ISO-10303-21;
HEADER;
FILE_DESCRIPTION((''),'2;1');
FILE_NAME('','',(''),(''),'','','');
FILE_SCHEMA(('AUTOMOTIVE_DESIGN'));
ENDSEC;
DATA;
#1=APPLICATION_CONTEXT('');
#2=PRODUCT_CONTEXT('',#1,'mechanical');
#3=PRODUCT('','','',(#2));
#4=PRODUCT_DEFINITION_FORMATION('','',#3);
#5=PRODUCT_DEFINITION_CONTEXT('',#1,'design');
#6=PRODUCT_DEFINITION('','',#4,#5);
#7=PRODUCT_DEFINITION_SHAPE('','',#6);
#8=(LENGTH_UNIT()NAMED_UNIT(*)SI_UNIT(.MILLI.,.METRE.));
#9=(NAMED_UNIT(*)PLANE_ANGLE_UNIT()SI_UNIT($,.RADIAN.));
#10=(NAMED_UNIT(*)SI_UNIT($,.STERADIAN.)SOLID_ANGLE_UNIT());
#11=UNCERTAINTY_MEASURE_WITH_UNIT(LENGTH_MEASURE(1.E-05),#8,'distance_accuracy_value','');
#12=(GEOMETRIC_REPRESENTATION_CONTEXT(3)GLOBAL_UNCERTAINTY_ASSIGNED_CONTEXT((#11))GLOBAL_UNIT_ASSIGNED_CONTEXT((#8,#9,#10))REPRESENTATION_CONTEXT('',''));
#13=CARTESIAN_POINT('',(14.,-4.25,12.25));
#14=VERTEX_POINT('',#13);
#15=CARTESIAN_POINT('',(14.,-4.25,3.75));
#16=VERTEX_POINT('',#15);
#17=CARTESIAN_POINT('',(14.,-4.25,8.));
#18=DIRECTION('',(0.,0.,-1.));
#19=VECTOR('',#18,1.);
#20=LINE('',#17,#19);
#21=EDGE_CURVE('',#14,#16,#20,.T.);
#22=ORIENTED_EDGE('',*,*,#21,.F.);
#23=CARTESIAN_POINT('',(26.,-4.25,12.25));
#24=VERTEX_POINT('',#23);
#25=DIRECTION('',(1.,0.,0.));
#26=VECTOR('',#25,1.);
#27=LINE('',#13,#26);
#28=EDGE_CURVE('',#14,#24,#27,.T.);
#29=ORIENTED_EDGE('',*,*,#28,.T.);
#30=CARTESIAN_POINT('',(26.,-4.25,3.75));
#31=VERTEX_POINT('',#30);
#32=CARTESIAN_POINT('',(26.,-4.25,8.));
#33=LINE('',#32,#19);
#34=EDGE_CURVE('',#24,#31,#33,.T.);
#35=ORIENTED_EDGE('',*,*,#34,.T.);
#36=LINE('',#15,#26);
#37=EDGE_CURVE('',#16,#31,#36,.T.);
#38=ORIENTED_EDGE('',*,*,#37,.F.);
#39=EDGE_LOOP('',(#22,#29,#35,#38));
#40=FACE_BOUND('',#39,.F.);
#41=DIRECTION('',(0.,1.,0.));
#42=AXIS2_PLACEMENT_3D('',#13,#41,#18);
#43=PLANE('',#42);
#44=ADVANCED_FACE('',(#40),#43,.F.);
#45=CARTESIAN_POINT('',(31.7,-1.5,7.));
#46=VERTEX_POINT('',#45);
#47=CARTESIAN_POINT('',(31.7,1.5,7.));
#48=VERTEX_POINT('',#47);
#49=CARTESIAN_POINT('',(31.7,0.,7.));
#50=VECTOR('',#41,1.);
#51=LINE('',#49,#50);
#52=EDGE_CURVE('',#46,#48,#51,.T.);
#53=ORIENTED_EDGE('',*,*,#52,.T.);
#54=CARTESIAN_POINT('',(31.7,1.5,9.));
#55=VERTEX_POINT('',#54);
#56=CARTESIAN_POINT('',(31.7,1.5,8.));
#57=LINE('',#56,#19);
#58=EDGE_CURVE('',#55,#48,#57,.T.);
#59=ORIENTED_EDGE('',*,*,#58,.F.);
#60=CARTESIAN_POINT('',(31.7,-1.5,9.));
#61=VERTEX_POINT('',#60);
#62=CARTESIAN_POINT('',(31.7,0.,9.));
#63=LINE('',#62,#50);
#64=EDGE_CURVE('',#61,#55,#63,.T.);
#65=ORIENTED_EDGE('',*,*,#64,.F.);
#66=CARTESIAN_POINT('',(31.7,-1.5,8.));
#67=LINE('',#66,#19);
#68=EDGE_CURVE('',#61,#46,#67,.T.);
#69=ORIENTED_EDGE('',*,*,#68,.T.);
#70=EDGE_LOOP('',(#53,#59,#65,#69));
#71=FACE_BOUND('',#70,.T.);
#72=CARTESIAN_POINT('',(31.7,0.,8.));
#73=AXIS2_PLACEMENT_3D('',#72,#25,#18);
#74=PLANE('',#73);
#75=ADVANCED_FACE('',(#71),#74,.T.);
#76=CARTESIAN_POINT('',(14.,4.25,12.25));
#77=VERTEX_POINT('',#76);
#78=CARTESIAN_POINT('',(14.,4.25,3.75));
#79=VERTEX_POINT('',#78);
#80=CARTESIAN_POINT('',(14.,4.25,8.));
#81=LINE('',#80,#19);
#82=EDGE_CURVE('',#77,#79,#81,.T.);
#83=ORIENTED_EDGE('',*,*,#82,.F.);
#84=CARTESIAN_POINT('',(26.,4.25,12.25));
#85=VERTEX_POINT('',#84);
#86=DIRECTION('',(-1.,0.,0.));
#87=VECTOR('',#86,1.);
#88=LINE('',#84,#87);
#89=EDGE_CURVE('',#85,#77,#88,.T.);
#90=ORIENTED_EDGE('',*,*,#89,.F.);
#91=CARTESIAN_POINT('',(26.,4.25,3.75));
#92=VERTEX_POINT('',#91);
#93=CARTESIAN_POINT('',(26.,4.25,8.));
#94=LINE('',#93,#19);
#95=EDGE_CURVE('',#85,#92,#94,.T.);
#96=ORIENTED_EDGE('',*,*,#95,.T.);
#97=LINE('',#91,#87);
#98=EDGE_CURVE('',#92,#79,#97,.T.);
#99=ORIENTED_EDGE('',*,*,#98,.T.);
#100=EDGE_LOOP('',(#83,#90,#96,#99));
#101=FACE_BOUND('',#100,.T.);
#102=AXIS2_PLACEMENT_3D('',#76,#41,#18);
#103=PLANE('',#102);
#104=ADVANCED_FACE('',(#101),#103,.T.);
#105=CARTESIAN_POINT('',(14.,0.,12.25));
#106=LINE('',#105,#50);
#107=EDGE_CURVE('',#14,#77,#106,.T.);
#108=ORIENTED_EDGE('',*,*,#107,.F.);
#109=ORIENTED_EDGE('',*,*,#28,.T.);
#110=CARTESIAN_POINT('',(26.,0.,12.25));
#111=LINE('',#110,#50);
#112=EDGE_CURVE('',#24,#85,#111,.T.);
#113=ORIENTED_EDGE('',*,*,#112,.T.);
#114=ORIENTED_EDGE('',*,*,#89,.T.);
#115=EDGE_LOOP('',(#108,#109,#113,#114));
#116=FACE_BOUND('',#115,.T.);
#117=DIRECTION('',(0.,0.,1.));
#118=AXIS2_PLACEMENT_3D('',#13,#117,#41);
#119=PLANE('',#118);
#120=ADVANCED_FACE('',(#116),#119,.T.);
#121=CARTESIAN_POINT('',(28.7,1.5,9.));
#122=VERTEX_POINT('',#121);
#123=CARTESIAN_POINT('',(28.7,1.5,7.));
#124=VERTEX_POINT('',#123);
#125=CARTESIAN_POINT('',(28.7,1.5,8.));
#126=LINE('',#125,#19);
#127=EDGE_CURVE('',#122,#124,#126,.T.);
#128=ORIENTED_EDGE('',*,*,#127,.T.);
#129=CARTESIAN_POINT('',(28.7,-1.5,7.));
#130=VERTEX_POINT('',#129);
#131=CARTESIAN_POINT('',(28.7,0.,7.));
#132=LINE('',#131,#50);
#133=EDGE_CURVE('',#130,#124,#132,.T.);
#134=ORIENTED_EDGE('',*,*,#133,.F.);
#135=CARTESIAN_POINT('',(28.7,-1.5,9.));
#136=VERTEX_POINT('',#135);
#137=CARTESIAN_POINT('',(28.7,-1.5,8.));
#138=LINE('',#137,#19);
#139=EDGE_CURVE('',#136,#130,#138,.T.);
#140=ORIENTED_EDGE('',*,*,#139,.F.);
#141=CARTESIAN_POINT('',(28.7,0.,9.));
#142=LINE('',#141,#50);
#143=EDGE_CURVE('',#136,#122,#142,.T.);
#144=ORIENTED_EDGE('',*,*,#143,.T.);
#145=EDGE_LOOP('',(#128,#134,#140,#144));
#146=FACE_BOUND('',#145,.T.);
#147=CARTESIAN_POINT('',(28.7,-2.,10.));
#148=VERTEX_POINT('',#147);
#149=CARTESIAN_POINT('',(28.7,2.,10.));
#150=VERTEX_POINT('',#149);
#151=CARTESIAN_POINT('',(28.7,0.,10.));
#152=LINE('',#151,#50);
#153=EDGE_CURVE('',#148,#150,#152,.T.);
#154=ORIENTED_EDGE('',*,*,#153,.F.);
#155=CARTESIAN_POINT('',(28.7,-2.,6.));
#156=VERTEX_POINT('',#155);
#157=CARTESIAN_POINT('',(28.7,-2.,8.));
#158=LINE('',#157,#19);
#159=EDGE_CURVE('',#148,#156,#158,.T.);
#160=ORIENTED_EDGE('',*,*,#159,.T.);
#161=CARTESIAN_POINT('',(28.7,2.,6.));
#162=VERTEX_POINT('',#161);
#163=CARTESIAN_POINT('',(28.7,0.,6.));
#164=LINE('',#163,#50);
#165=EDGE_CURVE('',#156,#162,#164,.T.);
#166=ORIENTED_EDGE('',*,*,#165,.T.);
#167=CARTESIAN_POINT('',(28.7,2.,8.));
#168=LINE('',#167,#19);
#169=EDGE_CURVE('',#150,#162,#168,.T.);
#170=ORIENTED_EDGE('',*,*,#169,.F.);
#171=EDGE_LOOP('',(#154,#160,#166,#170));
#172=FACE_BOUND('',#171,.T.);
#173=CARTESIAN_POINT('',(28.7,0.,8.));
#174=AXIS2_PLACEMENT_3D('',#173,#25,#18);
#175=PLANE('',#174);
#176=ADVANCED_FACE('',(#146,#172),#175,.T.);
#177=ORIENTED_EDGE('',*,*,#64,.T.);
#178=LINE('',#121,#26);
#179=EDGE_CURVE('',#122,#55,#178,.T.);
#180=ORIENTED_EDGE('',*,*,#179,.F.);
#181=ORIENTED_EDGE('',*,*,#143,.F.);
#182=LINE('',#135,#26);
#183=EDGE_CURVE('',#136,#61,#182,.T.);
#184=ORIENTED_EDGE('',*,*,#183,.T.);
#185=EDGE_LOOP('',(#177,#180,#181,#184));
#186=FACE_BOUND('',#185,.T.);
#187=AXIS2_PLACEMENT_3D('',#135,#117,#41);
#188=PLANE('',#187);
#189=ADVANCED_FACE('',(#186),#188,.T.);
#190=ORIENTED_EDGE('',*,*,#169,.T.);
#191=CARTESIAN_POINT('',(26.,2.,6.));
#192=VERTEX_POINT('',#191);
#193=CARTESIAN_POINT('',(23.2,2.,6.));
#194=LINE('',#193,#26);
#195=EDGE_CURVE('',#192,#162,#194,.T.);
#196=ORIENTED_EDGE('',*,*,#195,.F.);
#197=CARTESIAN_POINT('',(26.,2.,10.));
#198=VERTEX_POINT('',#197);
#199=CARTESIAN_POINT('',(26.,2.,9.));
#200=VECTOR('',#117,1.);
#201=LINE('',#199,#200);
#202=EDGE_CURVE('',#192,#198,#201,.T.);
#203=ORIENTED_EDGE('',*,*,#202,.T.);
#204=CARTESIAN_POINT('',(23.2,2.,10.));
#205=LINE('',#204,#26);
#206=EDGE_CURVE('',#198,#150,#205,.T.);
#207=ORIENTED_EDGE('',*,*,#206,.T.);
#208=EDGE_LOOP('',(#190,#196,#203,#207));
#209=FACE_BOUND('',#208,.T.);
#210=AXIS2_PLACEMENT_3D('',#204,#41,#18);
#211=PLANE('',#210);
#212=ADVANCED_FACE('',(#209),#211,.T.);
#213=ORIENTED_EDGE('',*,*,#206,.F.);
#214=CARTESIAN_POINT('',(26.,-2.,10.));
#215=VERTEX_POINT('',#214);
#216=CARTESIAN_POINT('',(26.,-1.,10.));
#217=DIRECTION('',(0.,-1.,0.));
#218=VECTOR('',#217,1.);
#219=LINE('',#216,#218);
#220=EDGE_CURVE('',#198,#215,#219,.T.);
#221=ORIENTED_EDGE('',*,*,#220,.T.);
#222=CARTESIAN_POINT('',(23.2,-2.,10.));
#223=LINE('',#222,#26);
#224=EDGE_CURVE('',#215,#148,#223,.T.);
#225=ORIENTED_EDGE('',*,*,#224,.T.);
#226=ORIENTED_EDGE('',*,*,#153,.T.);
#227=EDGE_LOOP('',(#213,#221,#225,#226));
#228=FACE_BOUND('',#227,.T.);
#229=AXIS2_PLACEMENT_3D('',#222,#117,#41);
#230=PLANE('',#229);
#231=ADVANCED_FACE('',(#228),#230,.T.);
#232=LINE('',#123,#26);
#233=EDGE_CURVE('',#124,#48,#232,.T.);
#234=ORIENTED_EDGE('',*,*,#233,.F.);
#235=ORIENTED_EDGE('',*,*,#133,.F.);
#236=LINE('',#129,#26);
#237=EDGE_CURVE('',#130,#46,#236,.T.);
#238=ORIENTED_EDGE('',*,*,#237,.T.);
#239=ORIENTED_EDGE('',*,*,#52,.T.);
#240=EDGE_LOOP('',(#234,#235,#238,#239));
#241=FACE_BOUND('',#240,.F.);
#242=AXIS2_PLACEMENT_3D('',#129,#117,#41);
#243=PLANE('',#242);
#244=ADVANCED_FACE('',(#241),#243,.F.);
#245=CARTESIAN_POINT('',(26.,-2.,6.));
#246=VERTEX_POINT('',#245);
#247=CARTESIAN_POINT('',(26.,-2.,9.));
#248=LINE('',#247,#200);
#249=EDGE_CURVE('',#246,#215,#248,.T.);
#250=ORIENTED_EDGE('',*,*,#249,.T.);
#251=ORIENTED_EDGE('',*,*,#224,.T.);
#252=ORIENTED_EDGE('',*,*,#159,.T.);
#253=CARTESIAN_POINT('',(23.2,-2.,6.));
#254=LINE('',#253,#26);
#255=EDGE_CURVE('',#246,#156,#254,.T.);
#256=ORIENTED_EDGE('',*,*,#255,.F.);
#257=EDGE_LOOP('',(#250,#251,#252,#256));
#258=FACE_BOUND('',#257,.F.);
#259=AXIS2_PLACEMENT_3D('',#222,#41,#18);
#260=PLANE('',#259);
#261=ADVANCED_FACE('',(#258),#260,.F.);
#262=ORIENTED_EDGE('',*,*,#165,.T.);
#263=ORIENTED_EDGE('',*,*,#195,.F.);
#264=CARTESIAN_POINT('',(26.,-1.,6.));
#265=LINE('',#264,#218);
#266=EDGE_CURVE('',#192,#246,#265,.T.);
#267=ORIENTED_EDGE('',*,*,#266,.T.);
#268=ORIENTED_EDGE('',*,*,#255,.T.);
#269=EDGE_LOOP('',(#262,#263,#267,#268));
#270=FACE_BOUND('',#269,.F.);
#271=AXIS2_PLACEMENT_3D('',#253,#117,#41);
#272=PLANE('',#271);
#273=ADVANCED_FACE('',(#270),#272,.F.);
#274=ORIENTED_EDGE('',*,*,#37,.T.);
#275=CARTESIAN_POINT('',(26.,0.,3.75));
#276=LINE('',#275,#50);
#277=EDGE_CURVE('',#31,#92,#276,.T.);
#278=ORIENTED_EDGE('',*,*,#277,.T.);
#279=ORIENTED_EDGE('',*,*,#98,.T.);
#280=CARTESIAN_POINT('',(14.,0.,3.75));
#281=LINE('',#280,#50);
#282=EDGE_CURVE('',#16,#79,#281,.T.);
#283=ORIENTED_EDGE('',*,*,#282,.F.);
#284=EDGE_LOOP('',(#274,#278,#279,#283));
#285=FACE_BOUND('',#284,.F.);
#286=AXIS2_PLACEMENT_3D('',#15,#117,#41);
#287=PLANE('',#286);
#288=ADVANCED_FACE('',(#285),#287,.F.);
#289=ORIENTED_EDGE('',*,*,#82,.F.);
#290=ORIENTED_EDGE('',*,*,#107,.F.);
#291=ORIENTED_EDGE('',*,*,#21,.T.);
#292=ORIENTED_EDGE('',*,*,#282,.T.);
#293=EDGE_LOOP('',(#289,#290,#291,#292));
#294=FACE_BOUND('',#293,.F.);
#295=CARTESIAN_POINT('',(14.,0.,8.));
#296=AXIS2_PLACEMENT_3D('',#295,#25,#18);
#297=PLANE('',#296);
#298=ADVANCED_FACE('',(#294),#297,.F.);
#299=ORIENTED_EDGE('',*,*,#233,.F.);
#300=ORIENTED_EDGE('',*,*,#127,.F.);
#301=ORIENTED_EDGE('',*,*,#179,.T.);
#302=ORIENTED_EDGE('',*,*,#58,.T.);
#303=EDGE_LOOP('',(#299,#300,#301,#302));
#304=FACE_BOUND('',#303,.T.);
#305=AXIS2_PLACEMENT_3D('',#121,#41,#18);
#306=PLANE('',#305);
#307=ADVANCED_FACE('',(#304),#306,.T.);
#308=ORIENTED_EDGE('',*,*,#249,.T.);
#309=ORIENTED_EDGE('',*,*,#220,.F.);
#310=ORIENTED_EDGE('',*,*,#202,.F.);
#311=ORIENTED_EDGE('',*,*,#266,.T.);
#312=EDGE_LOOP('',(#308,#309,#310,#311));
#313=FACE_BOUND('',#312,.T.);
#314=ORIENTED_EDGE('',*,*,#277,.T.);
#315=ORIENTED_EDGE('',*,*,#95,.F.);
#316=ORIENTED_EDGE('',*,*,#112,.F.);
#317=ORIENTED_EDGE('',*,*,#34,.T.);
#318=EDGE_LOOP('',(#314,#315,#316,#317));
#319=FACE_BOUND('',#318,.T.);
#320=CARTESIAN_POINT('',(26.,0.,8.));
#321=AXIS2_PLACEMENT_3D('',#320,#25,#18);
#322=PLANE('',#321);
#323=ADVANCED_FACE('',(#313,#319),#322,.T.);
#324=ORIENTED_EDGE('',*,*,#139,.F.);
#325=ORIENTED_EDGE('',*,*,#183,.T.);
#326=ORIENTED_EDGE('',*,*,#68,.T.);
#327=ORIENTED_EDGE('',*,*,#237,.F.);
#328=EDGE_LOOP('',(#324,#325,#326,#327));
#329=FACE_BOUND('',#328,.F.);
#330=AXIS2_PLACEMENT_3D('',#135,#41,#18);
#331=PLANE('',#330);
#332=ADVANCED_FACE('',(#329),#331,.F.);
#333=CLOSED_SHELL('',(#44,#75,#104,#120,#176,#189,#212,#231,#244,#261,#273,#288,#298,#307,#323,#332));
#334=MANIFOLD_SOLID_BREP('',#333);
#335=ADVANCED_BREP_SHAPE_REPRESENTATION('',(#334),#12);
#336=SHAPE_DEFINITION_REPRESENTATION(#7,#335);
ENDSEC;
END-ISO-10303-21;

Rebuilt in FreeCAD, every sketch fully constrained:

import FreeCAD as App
import Part
import Sketcher
from FreeCAD import Vector
Q = App.Units.Quantity

doc = App.newDocument("Part")
body = doc.addObject("PartDesign::Body", "Body")

# Sketch on XY plane
sketch1 = body.newObject("Sketcher::SketchObject", "Sketch")
sketch1.AttachmentSupport = (doc.getObject("XY_Plane"), [""])
sketch1.MapMode = "FlatFace"
sketch1.AttachmentOffset = App.Placement(Vector(0, 0, 5.7), App.Rotation())
sketch1.addGeometry([
    Part.LineSegment(Vector(-2, 2, 0), Vector(-2, -2, 0)),
    Part.LineSegment(Vector(-2, -2, 0), Vector(2, -2, 0)),
    Part.LineSegment(Vector(2, -2, 0), Vector(2, 2, 0)),
    Part.LineSegment(Vector(2, 2, 0), Vector(-2, 2, 0)),
], False)
sketch1.addConstraint([
    Sketcher.Constraint("Coincident", 0, 2, 1, 1),
    Sketcher.Constraint("Coincident", 1, 2, 2, 1),
    Sketcher.Constraint("Coincident", 2, 2, 3, 1),
    Sketcher.Constraint("Coincident", 3, 2, 0, 1),
    Sketcher.Constraint("Vertical", 0),
    Sketcher.Constraint("Horizontal", 1),
    Sketcher.Constraint("Vertical", 2),
    Sketcher.Constraint("Horizontal", 3),
    Sketcher.Constraint("Symmetric", 0, 2, 2, 2, -1, 1),
    Sketcher.Constraint("Equal", 3, 0),
    Sketcher.Constraint("DistanceX", 1, 1, 1, 2, Q("4 mm")),
])
pad1 = body.newObject("PartDesign::Pad", "Pad")
pad1.Profile = sketch1
pad1.Length = 5.5
body2 = doc.addObject("PartDesign::Body", "Body001")

# Sketch on XY plane
sketch2 = body2.newObject("Sketcher::SketchObject", "Sketch001")
sketch2.AttachmentSupport = (doc.getObject("XY_Plane001"), [""])
sketch2.MapMode = "FlatFace"
sketch2.AttachmentOffset = App.Placement(Vector(0, 0, -3.5), App.Rotation())
sketch2.addGeometry([
    Part.LineSegment(Vector(-4.25, 4.25, 0), Vector(-4.25, -4.25, 0)),
    Part.LineSegment(Vector(-4.25, -4.25, 0), Vector(4.25, -4.25, 0)),
    Part.LineSegment(Vector(4.25, -4.25, 0), Vector(4.25, 4.25, 0)),
    Part.LineSegment(Vector(4.25, 4.25, 0), Vector(-4.25, 4.25, 0)),
], False)
sketch2.addConstraint([
    Sketcher.Constraint("Coincident", 0, 2, 1, 1),
    Sketcher.Constraint("Coincident", 1, 2, 2, 1),
    Sketcher.Constraint("Coincident", 2, 2, 3, 1),
    Sketcher.Constraint("Coincident", 3, 2, 0, 1),
    Sketcher.Constraint("Vertical", 0),
    Sketcher.Constraint("Horizontal", 1),
    Sketcher.Constraint("Vertical", 2),
    Sketcher.Constraint("Horizontal", 3),
    Sketcher.Constraint("Symmetric", 0, 2, 2, 2, -1, 1),
    Sketcher.Constraint("Equal", 3, 0),
    Sketcher.Constraint("DistanceX", 1, 1, 1, 2, Q("8.5 mm")),
])
pad2 = body2.newObject("PartDesign::Pad", "Pad001")
pad2.Profile = sketch2
pad2.Length = 3.5
body3 = doc.addObject("PartDesign::Body", "Body002")

# Sketch on XY plane
sketch3 = body3.newObject("Sketcher::SketchObject", "Sketch002")
sketch3.AttachmentSupport = (doc.getObject("XY_Plane002"), [""])
sketch3.MapMode = "FlatFace"
sketch3.AttachmentOffset = App.Placement(Vector(0, 0, 11.2), App.Rotation())
sketch3.addGeometry([
    Part.LineSegment(Vector(-1, 1.5, 0), Vector(-1, -1.5, 0)),
    Part.LineSegment(Vector(-1, -1.5, 0), Vector(1, -1.5, 0)),
    Part.LineSegment(Vector(1, -1.5, 0), Vector(1, 1.5, 0)),
    Part.LineSegment(Vector(1, 1.5, 0), Vector(-1, 1.5, 0)),
], False)
sketch3.addConstraint([
    Sketcher.Constraint("Coincident", 0, 2, 1, 1),
    Sketcher.Constraint("Coincident", 1, 2, 2, 1),
    Sketcher.Constraint("Coincident", 2, 2, 3, 1),
    Sketcher.Constraint("Coincident", 3, 2, 0, 1),
    Sketcher.Constraint("Vertical", 0),
    Sketcher.Constraint("Horizontal", 1),
    Sketcher.Constraint("Vertical", 2),
    Sketcher.Constraint("Horizontal", 3),
    Sketcher.Constraint("Symmetric", 0, 2, 2, 2, -1, 1),
    Sketcher.Constraint("DistanceX", 1, 1, 1, 2, Q("2 mm")),
    Sketcher.Constraint("DistanceY", 0, 2, 0, 1, Q("3 mm")),
])
pad3 = body3.newObject("PartDesign::Pad", "Pad002")
pad3.Profile = sketch3
pad3.Length = 3
body4 = doc.addObject("PartDesign::Body", "Body003")

# Sketch on XY plane
sketch4 = body4.newObject("Sketcher::SketchObject", "Sketch003")
sketch4.AttachmentSupport = (doc.getObject("XY_Plane003"), [""])
sketch4.MapMode = "FlatFace"
sketch4.addGeometry([
    Part.LineSegment(Vector(-4.25, 4.25, 0), Vector(-4.25, -4.25, 0)),
    Part.LineSegment(Vector(-4.25, -4.25, 0), Vector(4.25, -4.25, 0)),
    Part.LineSegment(Vector(4.25, -4.25, 0), Vector(4.25, 4.25, 0)),
    Part.LineSegment(Vector(4.25, 4.25, 0), Vector(-4.25, 4.25, 0)),
], False)
sketch4.addConstraint([
    Sketcher.Constraint("Coincident", 0, 2, 1, 1),
    Sketcher.Constraint("Coincident", 1, 2, 2, 1),
    Sketcher.Constraint("Coincident", 2, 2, 3, 1),
    Sketcher.Constraint("Coincident", 3, 2, 0, 1),
    Sketcher.Constraint("Vertical", 0),
    Sketcher.Constraint("Horizontal", 1),
    Sketcher.Constraint("Vertical", 2),
    Sketcher.Constraint("Horizontal", 3),
    Sketcher.Constraint("Symmetric", 0, 2, 2, 2, -1, 1),
    Sketcher.Constraint("Equal", 3, 0),
    Sketcher.Constraint("DistanceX", 1, 1, 1, 2, Q("8.5 mm")),
])
pad4 = body4.newObject("PartDesign::Pad", "Pad003")
pad4.Profile = sketch4
pad4.Length = 8.5
doc.recompute()

boolean = body4.newObject("PartDesign::Boolean", "Boolean")
boolean.Type = "Fuse"
boolean.addObjects([body])
doc.recompute()

boolean2 = body4.newObject("PartDesign::Boolean", "Boolean001")
boolean2.Type = "Fuse"
boolean2.addObjects([body2])
doc.recompute()

boolean3 = body4.newObject("PartDesign::Boolean", "Boolean002")
boolean3.Type = "Fuse"
boolean3.addObjects([body3])
body5 = doc.addObject("PartDesign::Body", "Body004")
doc.recompute()

body4.Placement = App.Placement(Vector(17.5, 0, 8), App.Rotation(Vector(0, 1, 0), 90))
boolean4 = body5.newObject("PartDesign::Boolean", "Boolean003")
boolean4.Type = "Fuse"
boolean4.addObjects([body4])

doc.recompute()
